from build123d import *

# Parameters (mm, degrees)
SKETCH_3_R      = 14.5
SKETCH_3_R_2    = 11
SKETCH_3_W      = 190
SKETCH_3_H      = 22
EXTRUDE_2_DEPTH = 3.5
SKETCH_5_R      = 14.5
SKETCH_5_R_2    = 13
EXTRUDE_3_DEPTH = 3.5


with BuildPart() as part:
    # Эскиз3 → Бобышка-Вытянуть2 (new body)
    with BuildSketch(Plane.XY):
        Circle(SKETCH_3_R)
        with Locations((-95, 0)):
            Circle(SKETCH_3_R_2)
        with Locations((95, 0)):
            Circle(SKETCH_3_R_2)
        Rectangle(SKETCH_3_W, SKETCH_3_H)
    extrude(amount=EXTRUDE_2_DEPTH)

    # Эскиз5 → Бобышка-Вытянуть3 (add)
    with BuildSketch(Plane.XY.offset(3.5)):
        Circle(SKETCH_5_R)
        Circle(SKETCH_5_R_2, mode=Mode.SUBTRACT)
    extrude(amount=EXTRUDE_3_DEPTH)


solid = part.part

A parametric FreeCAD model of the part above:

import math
import FreeCAD as App
import Part
import Sketcher
Q = App.Units.Quantity

doc = App.newDocument("Part")
body = doc.addObject("PartDesign::Body", "Body")

# Sketch on XY plane
sketch1 = body.newObject("Sketcher::SketchObject", "Sketch")
sketch1.AttachmentSupport = (doc.getObject("XY_Plane"), [""])
sketch1.MapMode = "FlatFace"
sketch1.addGeometry(Part.LineSegment(App.Vector(9.447222, -11, 0), App.Vector(95, -11, 0)), False)
sketch1.addGeometry(Part.ArcOfCircle(Part.Circle(App.Vector(95, 0, 0), App.Vector(0, 0, 1), 11), math.radians(-90), math.radians(90)), False)
sketch1.addGeometry(Part.LineSegment(App.Vector(95, 11, 0), App.Vector(9.447222, 11, 0)), False)
sketch1.addGeometry(Part.ArcOfCircle(Part.Circle(App.Vector(0, 0, 0), App.Vector(0, 0, 1), 14.5), math.radians(49.342751), math.radians(130.657249)), False)
sketch1.addGeometry(Part.LineSegment(App.Vector(-9.447222, 11, 0), App.Vector(-95, 11, 0)), False)
sketch1.addGeometry(Part.ArcOfCircle(Part.Circle(App.Vector(-95, 0, 0), App.Vector(0, 0, 1), 11), math.radians(90), math.radians(270)), False)
sketch1.addGeometry(Part.LineSegment(App.Vector(-95, -11, 0), App.Vector(-9.447222, -11, 0)), False)
sketch1.addGeometry(Part.ArcOfCircle(Part.Circle(App.Vector(0, 0, 0), App.Vector(0, 0, 1), 14.5), math.radians(-130.657249), math.radians(-49.342751)), False)
sketch1.addConstraint(Sketcher.Constraint("Tangent", 0, 2, 1, 1))
sketch1.addConstraint(Sketcher.Constraint("Tangent", 1, 2, 2, 1))
sketch1.addConstraint(Sketcher.Constraint("Coincident", 2, 2, 3, 1))
sketch1.addConstraint(Sketcher.Constraint("Coincident", 3, 2, 4, 1))
sketch1.addConstraint(Sketcher.Constraint("Tangent", 4, 2, 5, 1))
sketch1.addConstraint(Sketcher.Constraint("Tangent", 5, 2, 6, 1))
sketch1.addConstraint(Sketcher.Constraint("Coincident", 6, 2, 7, 1))
sketch1.addConstraint(Sketcher.Constraint("Coincident", 7, 2, 0, 1))
sketch1.addConstraint(Sketcher.Constraint("Horizontal", 0))
sketch1.addConstraint(Sketcher.Constraint("Horizontal", 2))
sketch1.addConstraint(Sketcher.Constraint("Horizontal", 4))
sketch1.addConstraint(Sketcher.Constraint("Horizontal", 6))
sketch1.addConstraint(Sketcher.Constraint("Coincident", 3, 3, -1, 1))
sketch1.addConstraint(Sketcher.Constraint("Coincident", 7, 3, -1, 1))
sketch1.addConstraint(Sketcher.Constraint("Equal", 1, 5))
sketch1.addConstraint(Sketcher.Constraint("Equal", 3, 7))
sketch1.addConstraint(Sketcher.Constraint("Symmetric", 1, 3, 5, 3, -1, 1))
sketch1.addConstraint(Sketcher.Constraint("PointOnObject", 1, 3, -1))
sketch1.addConstraint(Sketcher.Constraint("Radius", 1, Q("11 mm")))
sketch1.addConstraint(Sketcher.Constraint("Radius", 3, Q("14.5 mm")))
sketch1.addConstraint(Sketcher.Constraint("DistanceX", -1, 1, 1, 3, Q("95 mm")))
pad1 = body.newObject("PartDesign::Pad", "Pad")
pad1.Profile = sketch1
pad1.Length = 3.5

# Sketch on XY plane
sketch2 = body.newObject("Sketcher::SketchObject", "Sketch001")
sketch2.AttachmentSupport = (doc.getObject("XY_Plane"), [""])
sketch2.MapMode = "FlatFace"
sketch2.AttachmentOffset = App.Placement(App.Vector(0, 0, 3.5), App.Rotation())
sketch2.addGeometry(Part.Circle(App.Vector(0, 0, 0), App.Vector(0, 0, 1), 14.5), False)
sketch2.addGeometry(Part.Circle(App.Vector(0, 0, 0), App.Vector(0, 0, 1), 13), False)
sketch2.addConstraint(Sketcher.Constraint("Coincident", 0, 3, -1, 1))
sketch2.addConstraint(Sketcher.Constraint("Coincident", 1, 3, -1, 1))
sketch2.addConstraint(Sketcher.Constraint("Diameter", 0, Q("29 mm")))
sketch2.addConstraint(Sketcher.Constraint("Diameter", 1, Q("26 mm")))
pad2 = body.newObject("PartDesign::Pad", "Pad001")
pad2.Profile = sketch2
pad2.Length = 3.5

doc.recompute()
